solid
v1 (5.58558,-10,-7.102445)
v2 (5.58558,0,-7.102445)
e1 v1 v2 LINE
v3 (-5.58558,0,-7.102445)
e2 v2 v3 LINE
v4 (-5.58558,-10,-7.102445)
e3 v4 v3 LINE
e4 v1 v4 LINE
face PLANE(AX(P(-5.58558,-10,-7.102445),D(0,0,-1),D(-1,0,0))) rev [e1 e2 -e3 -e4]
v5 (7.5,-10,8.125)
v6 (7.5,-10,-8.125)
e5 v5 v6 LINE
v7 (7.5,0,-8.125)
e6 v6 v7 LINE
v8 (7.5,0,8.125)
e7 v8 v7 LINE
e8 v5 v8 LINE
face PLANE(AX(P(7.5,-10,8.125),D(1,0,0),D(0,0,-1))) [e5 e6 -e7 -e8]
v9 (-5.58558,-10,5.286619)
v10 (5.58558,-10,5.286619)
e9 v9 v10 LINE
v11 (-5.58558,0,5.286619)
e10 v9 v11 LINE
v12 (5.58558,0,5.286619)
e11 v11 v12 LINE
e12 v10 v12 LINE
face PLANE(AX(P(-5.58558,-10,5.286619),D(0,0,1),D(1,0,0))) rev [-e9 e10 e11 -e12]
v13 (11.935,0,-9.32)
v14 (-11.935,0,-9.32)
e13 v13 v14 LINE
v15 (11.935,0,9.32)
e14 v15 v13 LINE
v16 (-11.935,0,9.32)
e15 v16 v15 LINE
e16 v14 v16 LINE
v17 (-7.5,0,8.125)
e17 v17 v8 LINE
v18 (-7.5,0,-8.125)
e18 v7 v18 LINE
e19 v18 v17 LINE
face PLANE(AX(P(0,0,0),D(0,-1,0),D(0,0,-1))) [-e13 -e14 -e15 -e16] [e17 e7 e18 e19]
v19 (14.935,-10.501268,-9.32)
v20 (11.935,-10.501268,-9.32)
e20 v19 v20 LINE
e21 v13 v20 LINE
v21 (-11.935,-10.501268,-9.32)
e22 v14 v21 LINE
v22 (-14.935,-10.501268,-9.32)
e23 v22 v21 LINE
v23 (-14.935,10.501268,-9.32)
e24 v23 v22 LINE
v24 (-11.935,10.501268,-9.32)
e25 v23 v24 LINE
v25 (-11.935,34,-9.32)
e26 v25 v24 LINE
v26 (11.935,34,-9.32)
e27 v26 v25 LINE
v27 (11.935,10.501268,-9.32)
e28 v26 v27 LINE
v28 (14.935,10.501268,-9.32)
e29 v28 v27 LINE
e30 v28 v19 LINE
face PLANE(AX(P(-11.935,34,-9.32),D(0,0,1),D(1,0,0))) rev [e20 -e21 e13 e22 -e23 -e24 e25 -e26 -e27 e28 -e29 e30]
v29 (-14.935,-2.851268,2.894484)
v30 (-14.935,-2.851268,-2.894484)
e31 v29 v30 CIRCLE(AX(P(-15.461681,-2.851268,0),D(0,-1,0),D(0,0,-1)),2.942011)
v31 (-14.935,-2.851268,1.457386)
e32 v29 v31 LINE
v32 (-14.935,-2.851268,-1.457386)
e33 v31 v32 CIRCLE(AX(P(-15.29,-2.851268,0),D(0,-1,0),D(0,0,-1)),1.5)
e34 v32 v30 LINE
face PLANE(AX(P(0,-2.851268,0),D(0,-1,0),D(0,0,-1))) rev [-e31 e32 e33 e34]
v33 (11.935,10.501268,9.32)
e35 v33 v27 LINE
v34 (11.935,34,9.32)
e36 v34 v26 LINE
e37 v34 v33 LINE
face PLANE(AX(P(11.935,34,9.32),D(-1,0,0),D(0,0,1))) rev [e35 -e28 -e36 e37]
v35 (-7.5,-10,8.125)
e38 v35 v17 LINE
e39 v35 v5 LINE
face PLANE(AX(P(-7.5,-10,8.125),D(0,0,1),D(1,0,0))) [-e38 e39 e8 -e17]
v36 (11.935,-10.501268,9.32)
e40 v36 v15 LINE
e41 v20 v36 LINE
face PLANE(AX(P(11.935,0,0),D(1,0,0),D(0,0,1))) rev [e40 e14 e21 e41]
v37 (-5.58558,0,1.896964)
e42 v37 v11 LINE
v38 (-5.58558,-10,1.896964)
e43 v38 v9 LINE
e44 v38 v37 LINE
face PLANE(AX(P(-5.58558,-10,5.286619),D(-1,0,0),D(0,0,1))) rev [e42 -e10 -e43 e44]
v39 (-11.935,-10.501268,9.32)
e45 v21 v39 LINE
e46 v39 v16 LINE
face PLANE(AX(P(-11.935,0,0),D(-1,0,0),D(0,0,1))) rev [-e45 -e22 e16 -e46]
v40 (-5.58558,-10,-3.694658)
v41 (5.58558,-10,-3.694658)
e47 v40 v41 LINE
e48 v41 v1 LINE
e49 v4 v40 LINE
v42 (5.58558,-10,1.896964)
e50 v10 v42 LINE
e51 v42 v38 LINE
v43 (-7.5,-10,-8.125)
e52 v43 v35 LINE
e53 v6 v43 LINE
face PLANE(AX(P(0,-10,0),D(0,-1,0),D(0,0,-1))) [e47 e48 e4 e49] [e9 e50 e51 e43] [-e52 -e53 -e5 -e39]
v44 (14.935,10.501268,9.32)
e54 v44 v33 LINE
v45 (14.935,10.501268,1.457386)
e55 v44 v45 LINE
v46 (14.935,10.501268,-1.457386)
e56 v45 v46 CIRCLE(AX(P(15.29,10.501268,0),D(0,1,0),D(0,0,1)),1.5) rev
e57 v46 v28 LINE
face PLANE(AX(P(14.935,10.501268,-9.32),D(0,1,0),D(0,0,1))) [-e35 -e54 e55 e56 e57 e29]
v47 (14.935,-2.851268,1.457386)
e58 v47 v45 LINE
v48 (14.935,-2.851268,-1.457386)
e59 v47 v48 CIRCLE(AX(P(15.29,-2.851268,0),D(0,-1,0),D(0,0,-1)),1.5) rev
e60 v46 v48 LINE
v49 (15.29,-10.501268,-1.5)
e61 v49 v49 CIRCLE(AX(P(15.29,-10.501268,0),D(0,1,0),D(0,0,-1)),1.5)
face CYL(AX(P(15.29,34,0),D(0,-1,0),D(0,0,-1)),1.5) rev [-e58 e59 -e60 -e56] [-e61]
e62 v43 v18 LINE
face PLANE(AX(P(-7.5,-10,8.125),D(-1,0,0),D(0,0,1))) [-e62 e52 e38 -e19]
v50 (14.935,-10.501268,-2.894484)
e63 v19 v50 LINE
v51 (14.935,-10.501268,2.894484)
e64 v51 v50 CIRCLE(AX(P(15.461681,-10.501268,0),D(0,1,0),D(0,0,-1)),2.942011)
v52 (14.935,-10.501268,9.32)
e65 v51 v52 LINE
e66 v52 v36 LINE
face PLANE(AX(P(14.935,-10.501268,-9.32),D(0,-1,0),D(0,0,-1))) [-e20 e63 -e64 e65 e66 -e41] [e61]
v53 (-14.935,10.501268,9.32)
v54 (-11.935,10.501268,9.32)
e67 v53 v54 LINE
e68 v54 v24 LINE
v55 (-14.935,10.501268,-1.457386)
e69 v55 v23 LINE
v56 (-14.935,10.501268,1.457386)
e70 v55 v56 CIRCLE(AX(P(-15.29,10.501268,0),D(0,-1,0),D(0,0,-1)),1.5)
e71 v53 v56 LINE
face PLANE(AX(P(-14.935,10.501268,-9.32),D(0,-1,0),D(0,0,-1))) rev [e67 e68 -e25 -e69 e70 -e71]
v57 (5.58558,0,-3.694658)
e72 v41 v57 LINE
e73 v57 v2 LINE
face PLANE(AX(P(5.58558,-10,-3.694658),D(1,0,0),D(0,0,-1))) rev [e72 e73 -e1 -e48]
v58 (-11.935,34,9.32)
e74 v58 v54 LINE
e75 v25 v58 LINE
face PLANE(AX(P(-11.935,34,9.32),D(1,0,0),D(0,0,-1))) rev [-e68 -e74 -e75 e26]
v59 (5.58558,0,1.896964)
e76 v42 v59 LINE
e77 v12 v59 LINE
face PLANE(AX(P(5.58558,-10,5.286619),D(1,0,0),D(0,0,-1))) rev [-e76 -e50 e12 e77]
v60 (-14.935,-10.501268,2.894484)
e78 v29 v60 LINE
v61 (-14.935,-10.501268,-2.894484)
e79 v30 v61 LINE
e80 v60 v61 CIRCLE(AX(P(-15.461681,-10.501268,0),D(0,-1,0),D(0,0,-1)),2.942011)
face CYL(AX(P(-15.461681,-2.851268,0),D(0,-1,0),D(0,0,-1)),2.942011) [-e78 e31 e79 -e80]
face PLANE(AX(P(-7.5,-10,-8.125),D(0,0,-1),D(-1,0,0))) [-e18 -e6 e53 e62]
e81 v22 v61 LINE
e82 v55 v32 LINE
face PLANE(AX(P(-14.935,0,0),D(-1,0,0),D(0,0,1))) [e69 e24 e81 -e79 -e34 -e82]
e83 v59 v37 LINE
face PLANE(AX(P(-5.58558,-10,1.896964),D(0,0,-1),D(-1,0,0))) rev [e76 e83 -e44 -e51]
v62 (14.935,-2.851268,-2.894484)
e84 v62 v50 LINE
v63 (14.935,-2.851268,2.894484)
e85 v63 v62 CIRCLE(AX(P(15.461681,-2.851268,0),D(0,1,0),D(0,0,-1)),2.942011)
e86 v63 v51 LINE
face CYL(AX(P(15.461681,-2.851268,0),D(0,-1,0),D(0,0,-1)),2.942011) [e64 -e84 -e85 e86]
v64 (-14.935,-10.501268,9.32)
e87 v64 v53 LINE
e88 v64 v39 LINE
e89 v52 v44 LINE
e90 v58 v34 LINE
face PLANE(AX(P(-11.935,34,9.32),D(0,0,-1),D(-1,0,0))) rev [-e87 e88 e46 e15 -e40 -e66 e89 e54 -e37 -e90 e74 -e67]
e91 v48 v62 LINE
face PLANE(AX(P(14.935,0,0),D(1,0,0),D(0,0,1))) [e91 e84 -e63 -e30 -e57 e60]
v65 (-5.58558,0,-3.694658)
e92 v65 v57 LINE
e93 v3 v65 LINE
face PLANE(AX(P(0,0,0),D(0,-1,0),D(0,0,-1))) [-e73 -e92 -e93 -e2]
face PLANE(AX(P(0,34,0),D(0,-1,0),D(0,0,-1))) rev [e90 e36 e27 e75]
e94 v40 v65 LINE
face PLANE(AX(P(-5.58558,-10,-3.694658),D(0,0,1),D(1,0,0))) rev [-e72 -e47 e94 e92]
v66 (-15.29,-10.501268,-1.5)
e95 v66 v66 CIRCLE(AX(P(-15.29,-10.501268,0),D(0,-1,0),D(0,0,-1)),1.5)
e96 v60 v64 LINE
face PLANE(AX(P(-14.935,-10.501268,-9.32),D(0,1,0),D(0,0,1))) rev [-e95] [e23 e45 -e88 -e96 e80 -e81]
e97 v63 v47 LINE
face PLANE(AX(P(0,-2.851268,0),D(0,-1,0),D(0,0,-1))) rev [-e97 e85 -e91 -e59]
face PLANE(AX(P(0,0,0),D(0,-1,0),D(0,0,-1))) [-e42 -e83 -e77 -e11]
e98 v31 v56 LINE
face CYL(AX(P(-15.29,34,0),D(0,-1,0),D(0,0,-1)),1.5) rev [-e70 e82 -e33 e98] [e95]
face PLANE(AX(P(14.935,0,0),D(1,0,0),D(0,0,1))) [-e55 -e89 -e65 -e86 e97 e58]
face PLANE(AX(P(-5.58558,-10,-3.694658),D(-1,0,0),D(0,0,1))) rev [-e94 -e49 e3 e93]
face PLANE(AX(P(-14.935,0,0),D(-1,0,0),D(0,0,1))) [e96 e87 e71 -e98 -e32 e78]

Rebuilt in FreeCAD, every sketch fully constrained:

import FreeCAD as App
import Part
import Sketcher
from FreeCAD import Vector
Q = App.Units.Quantity

doc = App.newDocument("Part")
body = doc.addObject("PartDesign::Body", "Body")

# Sketch on XZ plane
sketch1 = doc.addObject("Sketcher::SketchObject", "Sketch")
body.addObject(sketch1)
sketch1.AttachmentSupport = (doc.XZ_Plane, [""])
sketch1.MapMode = "FlatFace"
sketch1.addGeometry(Part.LineSegment(Vector(-8, -8, 0), Vector(-8, 8, 0)), False)
sketch1.addGeometry(Part.LineSegment(Vector(-8, 8, 0), Vector(8, 8, 0)), False)
sketch1.addGeometry(Part.LineSegment(Vector(8, 8, 0), Vector(8, -8, 0)), False)
sketch1.addGeometry(Part.LineSegment(Vector(8, -8, 0), Vector(-8, -8, 0)), False)
sketch1.addConstraint(Sketcher.Constraint("Coincident", 0, 2, 1, 1))
sketch1.addConstraint(Sketcher.Constraint("Coincident", 1, 2, 2, 1))
sketch1.addConstraint(Sketcher.Constraint("Coincident", 2, 2, 3, 1))
sketch1.addConstraint(Sketcher.Constraint("Coincident", 3, 2, 0, 1))
sketch1.addConstraint(Sketcher.Constraint("Vertical", 0))
sketch1.addConstraint(Sketcher.Constraint("Horizontal", 1))
sketch1.addConstraint(Sketcher.Constraint("Vertical", 2))
sketch1.addConstraint(Sketcher.Constraint("Horizontal", 3))
sketch1.addConstraint(Sketcher.Constraint("Symmetric", 0, 2, 2, 2, -1, 1))
sketch1.addConstraint(Sketcher.Constraint("DistanceX", 1, 1, 1, 2, Q("15 mm")))
sketch1.addConstraint(Sketcher.Constraint("DistanceY", 0, 1, 0, 2, Q("16.25 mm")))
pad1 = doc.addObject("PartDesign::Pad", "Pad")
body.addObject(pad1)
pad1.Profile = sketch1
pad1.Length = 10

# Sketch on XZ plane
sketch2 = doc.addObject("Sketcher::SketchObject", "Sketch001")
body.addObject(sketch2)
sketch2.AttachmentSupport = (doc.XZ_Plane, [""])
sketch2.MapMode = "FlatFace"
sketch2.addGeometry(Part.LineSegment(Vector(-5.6, -7.1, 0), Vector(-5.6, -3.7, 0)), False)
sketch2.addGeometry(Part.LineSegment(Vector(-5.6, -3.7, 0), Vector(5.6, -3.7, 0)), False)
sketch2.addGeometry(Part.LineSegment(Vector(5.6, -3.7, 0), Vector(5.6, -7.1, 0)), False)
sketch2.addGeometry(Part.LineSegment(Vector(5.6, -7.1, 0), Vector(-5.6, -7.1, 0)), False)
sketch2.addGeometry(Part.LineSegment(Vector(-5.6, 1.9, 0), Vector(-5.6, 5.3, 0)), False)
sketch2.addGeometry(Part.LineSegment(Vector(-5.6, 5.3, 0), Vector(5.6, 5.3, 0)), False)
sketch2.addGeometry(Part.LineSegment(Vector(5.6, 5.3, 0), Vector(5.6, 1.9, 0)), False)
sketch2.addGeometry(Part.LineSegment(Vector(5.6, 1.9, 0), Vector(-5.6, 1.9, 0)), False)
sketch2.addConstraint(Sketcher.Constraint("Coincident", 0, 2, 1, 1))
sketch2.addConstraint(Sketcher.Constraint("Coincident", 1, 2, 2, 1))
sketch2.addConstraint(Sketcher.Constraint("Coincident", 2, 2, 3, 1))
sketch2.addConstraint(Sketcher.Constraint("Coincident", 3, 2, 0, 1))
sketch2.addConstraint(Sketcher.Constraint("Coincident", 4, 2, 5, 1))
sketch2.addConstraint(Sketcher.Constraint("Coincident", 5, 2, 6, 1))
sketch2.addConstraint(Sketcher.Constraint("Coincident", 6, 2, 7, 1))
sketch2.addConstraint(Sketcher.Constraint("Coincident", 7, 2, 4, 1))
sketch2.addConstraint(Sketcher.Constraint("Vertical", 0))
sketch2.addConstraint(Sketcher.Constraint("Horizontal", 1))
sketch2.addConstraint(Sketcher.Constraint("Vertical", 2))
sketch2.addConstraint(Sketcher.Constraint("Horizontal", 3))
sketch2.addConstraint(Sketcher.Constraint("Vertical", 4))
sketch2.addConstraint(Sketcher.Constraint("Horizontal", 5))
sketch2.addConstraint(Sketcher.Constraint("Vertical", 6))
sketch2.addConstraint(Sketcher.Constraint("Horizontal", 7))
sketch2.addConstraint(Sketcher.Constraint("Vertical", 3, 2, 4, 2))
sketch2.addConstraint(Sketcher.Constraint("Vertical", 2, 2, 5, 2))
sketch2.addConstraint(Sketcher.Constraint("DistanceX", 1, 1, 1, 2, Q("11.171161 mm")))
sketch2.addConstraint(Sketcher.Constraint("DistanceY", 0, 1, 0, 2, Q("3.407787 mm")))
sketch2.addConstraint(Sketcher.Constraint("DistanceY", 4, 1, 4, 2, Q("3.389655 mm")))
sketch2.addConstraint(Sketcher.Constraint("DistanceX", 0, 2, -1, 1, Q("5.58558 mm")))
sketch2.addConstraint(Sketcher.Constraint("DistanceY", -1, 1, 4, 2, Q("5.286619 mm")))
sketch2.addConstraint(Sketcher.Constraint("DistanceY", 1, 2, 6, 2, Q("5.591622 mm")))
pocket1 = doc.addObject("PartDesign::Pocket", "Pocket")
body.addObject(pocket1)
pocket1.Profile = sketch2
pocket1.Length = 10
pocket1.Reversed = True

# Sketch on XZ plane
sketch3 = doc.addObject("Sketcher::SketchObject", "Sketch002")
body.addObject(sketch3)
sketch3.AttachmentSupport = (doc.XZ_Plane, [""])
sketch3.MapMode = "FlatFace"
sketch3.addGeometry(Part.LineSegment(Vector(-12, -9, 0), Vector(-12, 9, 0)), False)
sketch3.addGeometry(Part.LineSegment(Vector(-12, 9, 0), Vector(12, 9, 0)), False)
sketch3.addGeometry(Part.LineSegment(Vector(12, 9, 0), Vector(12, -9, 0)), False)
sketch3.addGeometry(Part.LineSegment(Vector(12, -9, 0), Vector(-12, -9, 0)), False)
sketch3.addConstraint(Sketcher.Constraint("Coincident", 0, 2, 1, 1))
sketch3.addConstraint(Sketcher.Constraint("Coincident", 1, 2, 2, 1))
sketch3.addConstraint(Sketcher.Constraint("Coincident", 2, 2, 3, 1))
sketch3.addConstraint(Sketcher.Constraint("Coincident", 3, 2, 0, 1))
sketch3.addConstraint(Sketcher.Constraint("Vertical", 0))
sketch3.addConstraint(Sketcher.Constraint("Horizontal", 1))
sketch3.addConstraint(Sketcher.Constraint("Vertical", 2))
sketch3.addConstraint(Sketcher.Constraint("Horizontal", 3))
sketch3.addConstraint(Sketcher.Constraint("Symmetric", 0, 2, 2, 2, -1, 1))
sketch3.addConstraint(Sketcher.Constraint("DistanceX", 1, 1, 1, 2, Q("23.87 mm")))
sketch3.addConstraint(Sketcher.Constraint("DistanceY", 0, 1, 0, 2, Q("18.64 mm")))
pad2 = doc.addObject("PartDesign::Pad", "Pad001")
body.addObject(pad2)
pad2.Profile = sketch3
pad2.Length = 34
pad2.Reversed = True

# Sketch on YZ plane
sketch4 = doc.addObject("Sketcher::SketchObject", "Sketch003")
body.addObject(sketch4)
sketch4.AttachmentSupport = (doc.YZ_Plane, [""])
sketch4.MapMode = "FlatFace"
sketch4.AttachmentOffset = App.Placement(Vector(0, 0, -11.935), App.Rotation())
sketch4.addGeometry(Part.LineSegment(Vector(11, -9, 0), Vector(-11, -9, 0)), False)
sketch4.addGeometry(Part.LineSegment(Vector(-11, -9, 0), Vector(-11, 9, 0)), False)
sketch4.addGeometry(Part.LineSegment(Vector(-11, 9, 0), Vector(11, 9, 0)), False)
sketch4.addGeometry(Part.LineSegment(Vector(11, 9, 0), Vector(11, -9, 0)), False)
sketch4.addConstraint(Sketcher.Constraint("Coincident", 0, 2, 1, 1))
sketch4.addConstraint(Sketcher.Constraint("Coincident", 1, 2, 2, 1))
sketch4.addConstraint(Sketcher.Constraint("Coincident", 2, 2, 3, 1))
sketch4.addConstraint(Sketcher.Constraint("Coincident", 3, 2, 0, 1))
sketch4.addConstraint(Sketcher.Constraint("Horizontal", 0))
sketch4.addConstraint(Sketcher.Constraint("Vertical", 1))
sketch4.addConstraint(Sketcher.Constraint("Horizontal", 2))
sketch4.addConstraint(Sketcher.Constraint("Vertical", 3))
sketch4.addConstraint(Sketcher.Constraint("Symmetric", 0, 2, 2, 2, -1, 1))
sketch4.addConstraint(Sketcher.Constraint("DistanceY", 1, 1, 1, 2, Q("18.64 mm")))
sketch4.addConstraint(Sketcher.Constraint("DistanceX", 0, 2, 0, 1, Q("21.002536 mm")))
pad3 = doc.addObject("PartDesign::Pad", "Pad002")
body.addObject(pad3)
pad3.Profile = sketch4
pad3.Length = 3
pad3.Reversed = True

# Sketch on XZ plane
sketch5 = doc.addObject("Sketcher::SketchObject", "Sketch004")
body.addObject(sketch5)
sketch5.AttachmentSupport = (doc.XZ_Plane, [""])
sketch5.MapMode = "FlatFace"
sketch5.AttachmentOffset = App.Placement(Vector(0, 0, 10.501268), App.Rotation())
sketch5.addGeometry(Part.Circle(Vector(-15.5, 0, 0), Vector(0, 0, 1), 2.9), False)
sketch5.addConstraint(Sketcher.Constraint("PointOnObject", 0, 3, -1))
sketch5.addConstraint(Sketcher.Constraint("Diameter", 0, Q("5.884021 mm")))
sketch5.addConstraint(Sketcher.Constraint("DistanceX", 0, 3, -1, 1, Q("15.461681 mm")))
pad4 = doc.addObject("PartDesign::Pad", "Pad003")
body.addObject(pad4)
pad4.Profile = sketch5
pad4.Length = 7.65
pad4.Reversed = True
doc.recompute()

mirrored = doc.addObject("PartDesign::Mirrored", "Mirrored")
body.addObject(mirrored)
mirrored.Originals = [pad3, pad4]
mirrored.MirrorPlane = (doc.YZ_Plane, [""])
body.Tip = mirrored

# Sketch on XZ plane
sketch6 = doc.addObject("Sketcher::SketchObject", "Sketch005")
body.addObject(sketch6)
sketch6.AttachmentSupport = (doc.XZ_Plane, [""])
sketch6.MapMode = "FlatFace"
sketch6.AttachmentOffset = App.Placement(Vector(0, 0, 10), App.Rotation())
sketch6.addGeometry(Part.Circle(Vector(-15.3, 0, 0), Vector(0, 0, 1), 1.5), False)
sketch6.addConstraint(Sketcher.Constraint("PointOnObject", 0, 3, -1))
sketch6.addConstraint(Sketcher.Constraint("Diameter", 0, Q("3 mm")))
sketch6.addConstraint(Sketcher.Constraint("DistanceX", 0, 3, -1, 1, Q("15.29 mm")))
pocket2 = doc.addObject("PartDesign::Pocket", "Pocket001")
body.addObject(pocket2)
pocket2.Profile = sketch6
pocket2.Length = 99.191733
pocket2.Midplane = True
doc.recompute()

mirrored2 = doc.addObject("PartDesign::Mirrored", "Mirrored001")
body.addObject(mirrored2)
mirrored2.Originals = [pocket2]
mirrored2.MirrorPlane = (doc.YZ_Plane, [""])
body.Tip = mirrored2

doc.recompute()
